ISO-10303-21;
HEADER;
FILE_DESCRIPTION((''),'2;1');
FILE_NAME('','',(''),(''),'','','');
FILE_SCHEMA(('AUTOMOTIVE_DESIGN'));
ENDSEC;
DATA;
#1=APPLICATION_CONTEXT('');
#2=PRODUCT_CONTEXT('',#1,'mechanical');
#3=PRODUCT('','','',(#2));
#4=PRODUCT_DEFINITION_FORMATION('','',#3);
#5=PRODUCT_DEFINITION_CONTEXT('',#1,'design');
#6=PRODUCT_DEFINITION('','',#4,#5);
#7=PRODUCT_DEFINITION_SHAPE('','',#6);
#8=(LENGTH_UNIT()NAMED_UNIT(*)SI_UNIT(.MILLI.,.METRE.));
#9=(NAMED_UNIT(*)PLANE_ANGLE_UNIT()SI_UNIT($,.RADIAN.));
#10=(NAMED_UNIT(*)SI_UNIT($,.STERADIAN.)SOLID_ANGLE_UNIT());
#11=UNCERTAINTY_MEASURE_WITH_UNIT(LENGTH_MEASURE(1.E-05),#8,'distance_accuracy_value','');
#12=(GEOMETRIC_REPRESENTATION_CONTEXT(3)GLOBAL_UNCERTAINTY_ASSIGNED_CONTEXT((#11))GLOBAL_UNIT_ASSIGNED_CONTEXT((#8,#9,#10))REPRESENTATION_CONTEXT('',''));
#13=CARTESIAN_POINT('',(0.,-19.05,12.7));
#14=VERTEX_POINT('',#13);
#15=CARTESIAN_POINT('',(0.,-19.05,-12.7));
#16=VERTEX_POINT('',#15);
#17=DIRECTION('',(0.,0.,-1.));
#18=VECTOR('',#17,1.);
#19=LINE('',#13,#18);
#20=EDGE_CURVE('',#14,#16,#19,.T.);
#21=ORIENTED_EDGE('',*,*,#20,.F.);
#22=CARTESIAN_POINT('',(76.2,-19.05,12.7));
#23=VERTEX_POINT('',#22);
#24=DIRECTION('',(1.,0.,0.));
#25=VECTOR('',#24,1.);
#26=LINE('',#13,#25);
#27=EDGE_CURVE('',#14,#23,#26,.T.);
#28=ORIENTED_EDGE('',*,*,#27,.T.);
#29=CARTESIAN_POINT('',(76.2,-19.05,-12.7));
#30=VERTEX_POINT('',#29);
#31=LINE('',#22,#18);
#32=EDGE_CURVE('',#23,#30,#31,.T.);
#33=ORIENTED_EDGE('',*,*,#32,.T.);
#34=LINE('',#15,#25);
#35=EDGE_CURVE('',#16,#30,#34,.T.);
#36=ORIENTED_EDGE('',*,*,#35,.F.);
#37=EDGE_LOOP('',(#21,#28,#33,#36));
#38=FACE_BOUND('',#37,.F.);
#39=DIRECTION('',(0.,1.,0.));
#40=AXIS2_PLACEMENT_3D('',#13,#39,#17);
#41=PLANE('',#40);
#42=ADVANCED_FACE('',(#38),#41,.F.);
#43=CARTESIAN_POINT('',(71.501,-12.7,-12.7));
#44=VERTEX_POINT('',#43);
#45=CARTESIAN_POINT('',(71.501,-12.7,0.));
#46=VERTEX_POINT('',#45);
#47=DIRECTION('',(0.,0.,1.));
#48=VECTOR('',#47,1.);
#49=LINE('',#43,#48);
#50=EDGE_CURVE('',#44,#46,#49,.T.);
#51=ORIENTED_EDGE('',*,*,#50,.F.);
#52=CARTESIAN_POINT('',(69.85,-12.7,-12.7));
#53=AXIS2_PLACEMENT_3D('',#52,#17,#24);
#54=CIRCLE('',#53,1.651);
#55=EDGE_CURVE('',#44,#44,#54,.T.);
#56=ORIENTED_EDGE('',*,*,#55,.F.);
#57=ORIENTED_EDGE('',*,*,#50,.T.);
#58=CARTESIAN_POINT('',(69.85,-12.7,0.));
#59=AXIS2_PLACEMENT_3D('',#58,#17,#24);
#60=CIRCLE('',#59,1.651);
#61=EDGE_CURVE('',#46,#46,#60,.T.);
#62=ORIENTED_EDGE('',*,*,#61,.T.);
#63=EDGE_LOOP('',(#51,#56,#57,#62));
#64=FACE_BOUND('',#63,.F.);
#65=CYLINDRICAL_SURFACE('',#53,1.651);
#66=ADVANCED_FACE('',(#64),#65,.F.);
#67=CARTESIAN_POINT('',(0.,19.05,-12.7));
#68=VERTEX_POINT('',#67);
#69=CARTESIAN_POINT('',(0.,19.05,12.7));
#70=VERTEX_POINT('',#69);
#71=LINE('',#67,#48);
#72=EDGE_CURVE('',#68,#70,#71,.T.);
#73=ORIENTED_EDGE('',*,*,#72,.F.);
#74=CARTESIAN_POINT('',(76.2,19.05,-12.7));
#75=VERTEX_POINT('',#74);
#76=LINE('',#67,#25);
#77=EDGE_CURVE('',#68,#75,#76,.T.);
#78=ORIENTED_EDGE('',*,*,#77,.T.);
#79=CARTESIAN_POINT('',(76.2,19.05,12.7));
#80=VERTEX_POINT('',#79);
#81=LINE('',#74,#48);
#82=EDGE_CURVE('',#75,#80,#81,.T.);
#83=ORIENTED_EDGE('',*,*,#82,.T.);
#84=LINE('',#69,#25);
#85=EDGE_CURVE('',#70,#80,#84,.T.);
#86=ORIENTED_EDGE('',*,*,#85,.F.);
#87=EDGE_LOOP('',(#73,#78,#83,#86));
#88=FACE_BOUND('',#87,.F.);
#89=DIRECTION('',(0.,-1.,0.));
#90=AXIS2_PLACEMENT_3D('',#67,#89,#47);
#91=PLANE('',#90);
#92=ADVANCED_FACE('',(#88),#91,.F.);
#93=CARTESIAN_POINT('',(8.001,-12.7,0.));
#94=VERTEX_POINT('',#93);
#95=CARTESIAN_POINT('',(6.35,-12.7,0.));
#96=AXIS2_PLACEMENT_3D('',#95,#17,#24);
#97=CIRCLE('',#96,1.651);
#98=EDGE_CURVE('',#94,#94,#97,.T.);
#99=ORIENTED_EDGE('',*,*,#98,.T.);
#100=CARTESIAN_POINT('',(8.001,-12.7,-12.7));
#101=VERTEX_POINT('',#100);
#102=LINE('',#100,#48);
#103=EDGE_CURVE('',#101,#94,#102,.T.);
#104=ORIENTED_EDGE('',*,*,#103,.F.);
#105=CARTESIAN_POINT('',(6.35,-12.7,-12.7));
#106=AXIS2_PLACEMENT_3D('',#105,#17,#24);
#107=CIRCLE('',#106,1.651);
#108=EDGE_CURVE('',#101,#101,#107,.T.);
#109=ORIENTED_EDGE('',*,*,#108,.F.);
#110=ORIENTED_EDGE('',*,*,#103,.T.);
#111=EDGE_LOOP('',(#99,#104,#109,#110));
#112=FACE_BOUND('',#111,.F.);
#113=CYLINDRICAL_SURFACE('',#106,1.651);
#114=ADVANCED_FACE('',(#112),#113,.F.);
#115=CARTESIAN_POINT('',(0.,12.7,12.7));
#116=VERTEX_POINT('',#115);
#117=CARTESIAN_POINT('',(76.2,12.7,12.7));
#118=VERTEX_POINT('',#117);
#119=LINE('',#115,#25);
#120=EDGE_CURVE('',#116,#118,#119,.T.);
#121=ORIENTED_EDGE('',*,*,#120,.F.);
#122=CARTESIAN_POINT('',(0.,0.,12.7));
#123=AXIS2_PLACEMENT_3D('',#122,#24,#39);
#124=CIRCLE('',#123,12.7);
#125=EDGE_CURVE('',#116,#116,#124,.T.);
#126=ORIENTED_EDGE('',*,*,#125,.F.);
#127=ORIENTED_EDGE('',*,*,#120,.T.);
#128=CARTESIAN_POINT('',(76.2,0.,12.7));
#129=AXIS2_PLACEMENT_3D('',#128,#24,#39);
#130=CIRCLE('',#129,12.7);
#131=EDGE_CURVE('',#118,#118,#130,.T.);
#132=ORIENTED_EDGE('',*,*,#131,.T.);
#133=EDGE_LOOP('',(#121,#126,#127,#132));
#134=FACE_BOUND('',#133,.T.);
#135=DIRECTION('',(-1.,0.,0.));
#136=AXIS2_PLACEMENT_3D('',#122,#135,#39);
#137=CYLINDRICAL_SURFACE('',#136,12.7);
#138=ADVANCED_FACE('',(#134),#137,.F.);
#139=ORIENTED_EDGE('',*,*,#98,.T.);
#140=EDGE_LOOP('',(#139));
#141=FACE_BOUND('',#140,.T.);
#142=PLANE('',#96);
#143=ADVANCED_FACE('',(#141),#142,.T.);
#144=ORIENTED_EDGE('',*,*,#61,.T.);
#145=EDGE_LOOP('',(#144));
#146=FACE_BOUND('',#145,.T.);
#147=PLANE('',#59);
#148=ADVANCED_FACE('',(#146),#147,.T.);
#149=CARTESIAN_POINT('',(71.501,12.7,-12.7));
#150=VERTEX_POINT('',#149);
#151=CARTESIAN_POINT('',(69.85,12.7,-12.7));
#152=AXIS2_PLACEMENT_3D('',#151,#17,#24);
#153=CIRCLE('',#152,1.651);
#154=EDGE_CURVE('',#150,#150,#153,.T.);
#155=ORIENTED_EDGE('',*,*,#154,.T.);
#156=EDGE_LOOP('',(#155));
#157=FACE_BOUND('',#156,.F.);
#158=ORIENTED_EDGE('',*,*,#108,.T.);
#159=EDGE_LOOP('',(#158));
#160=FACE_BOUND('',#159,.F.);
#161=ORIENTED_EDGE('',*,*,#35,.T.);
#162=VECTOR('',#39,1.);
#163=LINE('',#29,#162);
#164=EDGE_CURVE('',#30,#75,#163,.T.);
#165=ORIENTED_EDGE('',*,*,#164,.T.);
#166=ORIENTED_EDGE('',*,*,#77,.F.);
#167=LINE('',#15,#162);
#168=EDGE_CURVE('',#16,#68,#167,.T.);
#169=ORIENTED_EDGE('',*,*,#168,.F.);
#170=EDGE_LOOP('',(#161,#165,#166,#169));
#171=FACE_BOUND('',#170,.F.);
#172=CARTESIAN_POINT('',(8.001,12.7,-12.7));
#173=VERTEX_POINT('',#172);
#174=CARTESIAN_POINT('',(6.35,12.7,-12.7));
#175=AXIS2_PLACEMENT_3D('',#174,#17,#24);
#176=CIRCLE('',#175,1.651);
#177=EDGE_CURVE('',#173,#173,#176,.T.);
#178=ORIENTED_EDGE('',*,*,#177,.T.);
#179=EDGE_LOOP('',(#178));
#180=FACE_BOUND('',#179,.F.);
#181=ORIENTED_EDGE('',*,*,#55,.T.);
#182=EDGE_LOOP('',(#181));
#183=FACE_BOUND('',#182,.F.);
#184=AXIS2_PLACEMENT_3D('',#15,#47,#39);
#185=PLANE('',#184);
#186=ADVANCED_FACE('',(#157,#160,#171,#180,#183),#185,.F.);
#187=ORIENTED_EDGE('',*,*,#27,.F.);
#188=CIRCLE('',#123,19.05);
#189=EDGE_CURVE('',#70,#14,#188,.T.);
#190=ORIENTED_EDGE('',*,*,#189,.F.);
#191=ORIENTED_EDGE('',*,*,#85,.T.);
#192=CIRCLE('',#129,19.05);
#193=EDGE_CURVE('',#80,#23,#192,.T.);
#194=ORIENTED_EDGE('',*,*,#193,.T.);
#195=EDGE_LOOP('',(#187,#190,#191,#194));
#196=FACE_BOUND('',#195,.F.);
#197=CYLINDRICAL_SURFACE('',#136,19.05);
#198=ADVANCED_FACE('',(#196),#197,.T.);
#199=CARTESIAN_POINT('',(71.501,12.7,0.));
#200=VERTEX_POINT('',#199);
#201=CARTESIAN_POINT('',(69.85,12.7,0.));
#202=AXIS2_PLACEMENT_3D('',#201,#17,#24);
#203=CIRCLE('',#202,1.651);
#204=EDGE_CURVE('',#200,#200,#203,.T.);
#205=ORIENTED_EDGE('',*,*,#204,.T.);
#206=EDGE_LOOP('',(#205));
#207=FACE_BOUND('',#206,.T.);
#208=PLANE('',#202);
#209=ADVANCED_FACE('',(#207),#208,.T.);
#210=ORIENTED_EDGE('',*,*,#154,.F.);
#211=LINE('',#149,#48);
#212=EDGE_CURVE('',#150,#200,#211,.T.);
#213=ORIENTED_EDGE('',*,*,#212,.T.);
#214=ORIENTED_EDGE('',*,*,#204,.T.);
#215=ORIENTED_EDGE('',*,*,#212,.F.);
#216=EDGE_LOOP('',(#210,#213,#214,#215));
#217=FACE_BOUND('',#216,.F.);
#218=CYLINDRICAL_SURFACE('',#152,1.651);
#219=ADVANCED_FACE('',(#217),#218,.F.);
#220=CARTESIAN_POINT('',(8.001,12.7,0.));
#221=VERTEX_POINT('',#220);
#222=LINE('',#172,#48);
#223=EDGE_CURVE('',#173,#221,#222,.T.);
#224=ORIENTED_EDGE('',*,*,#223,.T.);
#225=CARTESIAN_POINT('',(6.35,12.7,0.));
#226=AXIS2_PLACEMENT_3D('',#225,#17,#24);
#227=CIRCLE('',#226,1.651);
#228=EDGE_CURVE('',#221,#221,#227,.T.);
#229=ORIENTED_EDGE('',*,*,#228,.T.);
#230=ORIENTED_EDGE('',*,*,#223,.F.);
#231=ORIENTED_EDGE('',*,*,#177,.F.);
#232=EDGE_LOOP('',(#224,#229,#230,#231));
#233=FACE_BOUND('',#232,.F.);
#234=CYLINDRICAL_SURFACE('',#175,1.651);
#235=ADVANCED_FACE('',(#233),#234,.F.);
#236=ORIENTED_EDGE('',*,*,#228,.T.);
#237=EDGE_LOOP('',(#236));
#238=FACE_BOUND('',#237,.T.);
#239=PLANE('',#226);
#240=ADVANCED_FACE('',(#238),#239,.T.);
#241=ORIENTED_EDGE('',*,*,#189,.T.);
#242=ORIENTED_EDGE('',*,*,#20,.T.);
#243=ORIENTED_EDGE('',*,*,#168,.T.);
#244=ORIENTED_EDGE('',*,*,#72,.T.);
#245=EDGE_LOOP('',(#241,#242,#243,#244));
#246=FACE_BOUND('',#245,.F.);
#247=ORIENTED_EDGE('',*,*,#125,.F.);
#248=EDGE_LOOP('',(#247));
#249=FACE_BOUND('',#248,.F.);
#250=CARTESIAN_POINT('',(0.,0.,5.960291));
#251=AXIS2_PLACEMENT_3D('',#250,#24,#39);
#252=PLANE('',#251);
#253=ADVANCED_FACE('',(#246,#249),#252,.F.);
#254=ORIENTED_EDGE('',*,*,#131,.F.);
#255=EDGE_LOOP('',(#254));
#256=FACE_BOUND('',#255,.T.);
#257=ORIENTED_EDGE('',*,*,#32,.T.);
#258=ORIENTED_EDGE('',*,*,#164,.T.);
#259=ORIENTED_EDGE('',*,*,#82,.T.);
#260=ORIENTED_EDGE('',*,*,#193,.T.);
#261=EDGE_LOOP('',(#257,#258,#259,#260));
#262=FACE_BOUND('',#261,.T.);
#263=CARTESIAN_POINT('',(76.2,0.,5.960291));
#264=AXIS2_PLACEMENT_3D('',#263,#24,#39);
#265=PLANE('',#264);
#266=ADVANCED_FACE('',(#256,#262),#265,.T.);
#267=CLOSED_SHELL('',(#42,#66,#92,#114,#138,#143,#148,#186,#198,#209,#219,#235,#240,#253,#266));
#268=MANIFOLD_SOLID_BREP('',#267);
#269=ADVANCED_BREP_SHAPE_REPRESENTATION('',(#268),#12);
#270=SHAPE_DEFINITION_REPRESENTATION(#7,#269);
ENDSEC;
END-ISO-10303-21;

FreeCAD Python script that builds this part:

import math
import FreeCAD as App
import Part
import Sketcher
Q = App.Units.Quantity

doc = App.newDocument("Part")
body = doc.addObject("PartDesign::Body", "Body")

# Sketch on YZ plane
sketch1 = doc.addObject("Sketcher::SketchObject", "Sketch")
body.addObject(sketch1)
sketch1.AttachmentSupport = (doc.YZ_Plane, [""])
sketch1.MapMode = "FlatFace"
sketch1.addGeometry([
    Part.LineSegment(App.Vector(-19.05, 12.7, 0), App.Vector(-19.05, -12.7, 0)),  # 0
    Part.LineSegment(App.Vector(-19.05, -12.7, 0), App.Vector(19.05, -12.7, 0)),  # 1
    Part.LineSegment(App.Vector(19.05, -12.7, 0), App.Vector(19.05, 12.7, 0)),  # 2
    Part.ArcOfCircle(Part.Circle(App.Vector(0, 12.7, 0), App.Vector(0, 0, 1), 19.05), math.radians(0), math.radians(180)),  # 3
    Part.Circle(App.Vector(0, 12.7, 0), App.Vector(0, 0, 1), 12.7),  # 4
], False)
sketch1.addConstraint([
    Sketcher.Constraint("Coincident", 0, 2, 1, 1),
    Sketcher.Constraint("Coincident", 1, 2, 2, 1),
    Sketcher.Constraint("Tangent", 2, 2, 3, 1),
    Sketcher.Constraint("Tangent", 3, 2, 0, 1),
    Sketcher.Constraint("Vertical", 0),
    Sketcher.Constraint("Horizontal", 1),
    Sketcher.Constraint("Vertical", 2),
    Sketcher.Constraint("Coincident", 4, 3, 3, 3),
    Sketcher.Constraint("Symmetric", 0, 2, 2, 2, -1, 1),
    Sketcher.Constraint("Diameter", 4, Q("1 in")),
    Sketcher.Constraint("DistanceY", 0, 2, 0, 1, Q("1 in")),
    Sketcher.Constraint("Radius", 3, Q("0.75 in")),
])
pad1 = doc.addObject("PartDesign::Pad", "Pad")
body.addObject(pad1)
pad1.Profile = sketch1
pad1.Length = Q("3 in")

# Sketch on XY plane
sketch2 = doc.addObject("Sketcher::SketchObject", "Sketch001")
body.addObject(sketch2)
sketch2.AttachmentSupport = (doc.XY_Plane, [""])
sketch2.MapMode = "FlatFace"
sketch2.AttachmentOffset = App.Placement(App.Vector(0, 0, -0.5 * 25.4), App.Rotation())
sketch2.addGeometry([
    Part.Circle(App.Vector(6.35, -12.7, 0), App.Vector(0, 0, 1), 1.651),
    Part.Circle(App.Vector(6.35, 12.7, 0), App.Vector(0, 0, 1), 1.651),
    Part.Circle(App.Vector(69.85, 12.7, 0), App.Vector(0, 0, 1), 1.651),
    Part.Circle(App.Vector(69.85, -12.7, 0), App.Vector(0, 0, 1), 1.651),
], False)
sketch2.addConstraint([
    Sketcher.Constraint("Equal", 0, 1),
    Sketcher.Constraint("Equal", 1, 2),
    Sketcher.Constraint("Equal", 2, 3),
    Sketcher.Constraint("Symmetric", 0, 3, 1, 3, -1),
    Sketcher.Constraint("Symmetric", 2, 3, 3, 3, -1),
    Sketcher.Constraint("Horizontal", 1, 3, 2, 3),
    Sketcher.Constraint("Diameter", 0, Q("0.13 in")),
    Sketcher.Constraint("DistanceY", 0, 3, 1, 3, Q("1 in")),
    Sketcher.Constraint("DistanceX", 1, 3, 2, 3, Q("2.5 in")),
    Sketcher.Constraint("DistanceX", -1, 1, 0, 3, Q("0.25 in")),
])
pocket1 = doc.addObject("PartDesign::Pocket", "Pocket")
body.addObject(pocket1)
pocket1.Profile = sketch2
pocket1.Length = Q("0.5 in")
pocket1.Reversed = True

doc.recompute()
